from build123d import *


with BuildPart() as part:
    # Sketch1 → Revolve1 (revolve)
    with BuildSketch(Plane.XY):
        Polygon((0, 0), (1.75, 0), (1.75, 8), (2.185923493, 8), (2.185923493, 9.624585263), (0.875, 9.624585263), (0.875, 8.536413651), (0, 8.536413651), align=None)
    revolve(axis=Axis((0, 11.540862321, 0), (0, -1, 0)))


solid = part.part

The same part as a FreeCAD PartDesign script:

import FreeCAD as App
import Part
import Sketcher
from FreeCAD import Vector
Q = App.Units.Quantity

doc = App.newDocument("Part")
body = doc.addObject("PartDesign::Body", "Body")

# Sketch on XY plane
sketch1 = body.newObject("Sketcher::SketchObject", "Sketch")
sketch1.AttachmentSupport = (doc.getObject("XY_Plane"), [""])
sketch1.MapMode = "FlatFace"
sketch1.addGeometry([
    Part.LineSegment(Vector(0, 0, 0), Vector(1.75, 0, 0)),  # 0
    Part.LineSegment(Vector(1.75, 0, 0), Vector(1.75, 8, 0)),  # 1
    Part.LineSegment(Vector(1.75, 8, 0), Vector(2.19, 8, 0)),  # 2
    Part.LineSegment(Vector(2.19, 8, 0), Vector(2.19, 9.62, 0)),  # 3
    Part.LineSegment(Vector(2.19, 9.62, 0), Vector(0.88, 9.62, 0)),  # 4
    Part.LineSegment(Vector(0.88, 9.62, 0), Vector(0.88, 8.54, 0)),  # 5
    Part.LineSegment(Vector(0.88, 8.54, 0), Vector(0, 8.54, 0)),  # 6
    Part.LineSegment(Vector(0, 8.54, 0), Vector(0, 0, 0)),  # 7
], False)
sketch1.addConstraint([
    Sketcher.Constraint("Coincident", 0, 2, 1, 1),
    Sketcher.Constraint("Coincident", 1, 2, 2, 1),
    Sketcher.Constraint("Coincident", 2, 2, 3, 1),
    Sketcher.Constraint("Coincident", 3, 2, 4, 1),
    Sketcher.Constraint("Coincident", 4, 2, 5, 1),
    Sketcher.Constraint("Coincident", 5, 2, 6, 1),
    Sketcher.Constraint("Coincident", 6, 2, 7, 1),
    Sketcher.Constraint("Coincident", 7, 2, 0, 1),
    Sketcher.Constraint("Horizontal", 0),
    Sketcher.Constraint("Vertical", 1),
    Sketcher.Constraint("Horizontal", 2),
    Sketcher.Constraint("Vertical", 3),
    Sketcher.Constraint("Horizontal", 4),
    Sketcher.Constraint("Vertical", 5),
    Sketcher.Constraint("Horizontal", 6),
    Sketcher.Constraint("Vertical", 7),
    Sketcher.Constraint("Coincident", 7, 2, -1, 1),
    Sketcher.Constraint("DistanceY", 1, 1, 1, 2, Q("8 mm")),
    Sketcher.Constraint("DistanceX", 0, 1, 0, 2, Q("1.75 mm")),
    Sketcher.Constraint("DistanceX", 6, 2, 6, 1, Q("0.875 mm")),
    Sketcher.Constraint("DistanceY", 5, 2, 5, 1, Q("1.088172 mm")),
    Sketcher.Constraint("DistanceX", 2, 1, 2, 2, Q("0.435923 mm")),
    Sketcher.Constraint("DistanceY", 3, 1, 3, 2, Q("1.624585 mm")),
])
revolution = body.newObject("PartDesign::Revolution", "Revolution")
revolution.Profile = sketch1
revolution.ReferenceAxis = (sketch1, ["V_Axis"])
revolution.Angle = 360

doc.recompute()
